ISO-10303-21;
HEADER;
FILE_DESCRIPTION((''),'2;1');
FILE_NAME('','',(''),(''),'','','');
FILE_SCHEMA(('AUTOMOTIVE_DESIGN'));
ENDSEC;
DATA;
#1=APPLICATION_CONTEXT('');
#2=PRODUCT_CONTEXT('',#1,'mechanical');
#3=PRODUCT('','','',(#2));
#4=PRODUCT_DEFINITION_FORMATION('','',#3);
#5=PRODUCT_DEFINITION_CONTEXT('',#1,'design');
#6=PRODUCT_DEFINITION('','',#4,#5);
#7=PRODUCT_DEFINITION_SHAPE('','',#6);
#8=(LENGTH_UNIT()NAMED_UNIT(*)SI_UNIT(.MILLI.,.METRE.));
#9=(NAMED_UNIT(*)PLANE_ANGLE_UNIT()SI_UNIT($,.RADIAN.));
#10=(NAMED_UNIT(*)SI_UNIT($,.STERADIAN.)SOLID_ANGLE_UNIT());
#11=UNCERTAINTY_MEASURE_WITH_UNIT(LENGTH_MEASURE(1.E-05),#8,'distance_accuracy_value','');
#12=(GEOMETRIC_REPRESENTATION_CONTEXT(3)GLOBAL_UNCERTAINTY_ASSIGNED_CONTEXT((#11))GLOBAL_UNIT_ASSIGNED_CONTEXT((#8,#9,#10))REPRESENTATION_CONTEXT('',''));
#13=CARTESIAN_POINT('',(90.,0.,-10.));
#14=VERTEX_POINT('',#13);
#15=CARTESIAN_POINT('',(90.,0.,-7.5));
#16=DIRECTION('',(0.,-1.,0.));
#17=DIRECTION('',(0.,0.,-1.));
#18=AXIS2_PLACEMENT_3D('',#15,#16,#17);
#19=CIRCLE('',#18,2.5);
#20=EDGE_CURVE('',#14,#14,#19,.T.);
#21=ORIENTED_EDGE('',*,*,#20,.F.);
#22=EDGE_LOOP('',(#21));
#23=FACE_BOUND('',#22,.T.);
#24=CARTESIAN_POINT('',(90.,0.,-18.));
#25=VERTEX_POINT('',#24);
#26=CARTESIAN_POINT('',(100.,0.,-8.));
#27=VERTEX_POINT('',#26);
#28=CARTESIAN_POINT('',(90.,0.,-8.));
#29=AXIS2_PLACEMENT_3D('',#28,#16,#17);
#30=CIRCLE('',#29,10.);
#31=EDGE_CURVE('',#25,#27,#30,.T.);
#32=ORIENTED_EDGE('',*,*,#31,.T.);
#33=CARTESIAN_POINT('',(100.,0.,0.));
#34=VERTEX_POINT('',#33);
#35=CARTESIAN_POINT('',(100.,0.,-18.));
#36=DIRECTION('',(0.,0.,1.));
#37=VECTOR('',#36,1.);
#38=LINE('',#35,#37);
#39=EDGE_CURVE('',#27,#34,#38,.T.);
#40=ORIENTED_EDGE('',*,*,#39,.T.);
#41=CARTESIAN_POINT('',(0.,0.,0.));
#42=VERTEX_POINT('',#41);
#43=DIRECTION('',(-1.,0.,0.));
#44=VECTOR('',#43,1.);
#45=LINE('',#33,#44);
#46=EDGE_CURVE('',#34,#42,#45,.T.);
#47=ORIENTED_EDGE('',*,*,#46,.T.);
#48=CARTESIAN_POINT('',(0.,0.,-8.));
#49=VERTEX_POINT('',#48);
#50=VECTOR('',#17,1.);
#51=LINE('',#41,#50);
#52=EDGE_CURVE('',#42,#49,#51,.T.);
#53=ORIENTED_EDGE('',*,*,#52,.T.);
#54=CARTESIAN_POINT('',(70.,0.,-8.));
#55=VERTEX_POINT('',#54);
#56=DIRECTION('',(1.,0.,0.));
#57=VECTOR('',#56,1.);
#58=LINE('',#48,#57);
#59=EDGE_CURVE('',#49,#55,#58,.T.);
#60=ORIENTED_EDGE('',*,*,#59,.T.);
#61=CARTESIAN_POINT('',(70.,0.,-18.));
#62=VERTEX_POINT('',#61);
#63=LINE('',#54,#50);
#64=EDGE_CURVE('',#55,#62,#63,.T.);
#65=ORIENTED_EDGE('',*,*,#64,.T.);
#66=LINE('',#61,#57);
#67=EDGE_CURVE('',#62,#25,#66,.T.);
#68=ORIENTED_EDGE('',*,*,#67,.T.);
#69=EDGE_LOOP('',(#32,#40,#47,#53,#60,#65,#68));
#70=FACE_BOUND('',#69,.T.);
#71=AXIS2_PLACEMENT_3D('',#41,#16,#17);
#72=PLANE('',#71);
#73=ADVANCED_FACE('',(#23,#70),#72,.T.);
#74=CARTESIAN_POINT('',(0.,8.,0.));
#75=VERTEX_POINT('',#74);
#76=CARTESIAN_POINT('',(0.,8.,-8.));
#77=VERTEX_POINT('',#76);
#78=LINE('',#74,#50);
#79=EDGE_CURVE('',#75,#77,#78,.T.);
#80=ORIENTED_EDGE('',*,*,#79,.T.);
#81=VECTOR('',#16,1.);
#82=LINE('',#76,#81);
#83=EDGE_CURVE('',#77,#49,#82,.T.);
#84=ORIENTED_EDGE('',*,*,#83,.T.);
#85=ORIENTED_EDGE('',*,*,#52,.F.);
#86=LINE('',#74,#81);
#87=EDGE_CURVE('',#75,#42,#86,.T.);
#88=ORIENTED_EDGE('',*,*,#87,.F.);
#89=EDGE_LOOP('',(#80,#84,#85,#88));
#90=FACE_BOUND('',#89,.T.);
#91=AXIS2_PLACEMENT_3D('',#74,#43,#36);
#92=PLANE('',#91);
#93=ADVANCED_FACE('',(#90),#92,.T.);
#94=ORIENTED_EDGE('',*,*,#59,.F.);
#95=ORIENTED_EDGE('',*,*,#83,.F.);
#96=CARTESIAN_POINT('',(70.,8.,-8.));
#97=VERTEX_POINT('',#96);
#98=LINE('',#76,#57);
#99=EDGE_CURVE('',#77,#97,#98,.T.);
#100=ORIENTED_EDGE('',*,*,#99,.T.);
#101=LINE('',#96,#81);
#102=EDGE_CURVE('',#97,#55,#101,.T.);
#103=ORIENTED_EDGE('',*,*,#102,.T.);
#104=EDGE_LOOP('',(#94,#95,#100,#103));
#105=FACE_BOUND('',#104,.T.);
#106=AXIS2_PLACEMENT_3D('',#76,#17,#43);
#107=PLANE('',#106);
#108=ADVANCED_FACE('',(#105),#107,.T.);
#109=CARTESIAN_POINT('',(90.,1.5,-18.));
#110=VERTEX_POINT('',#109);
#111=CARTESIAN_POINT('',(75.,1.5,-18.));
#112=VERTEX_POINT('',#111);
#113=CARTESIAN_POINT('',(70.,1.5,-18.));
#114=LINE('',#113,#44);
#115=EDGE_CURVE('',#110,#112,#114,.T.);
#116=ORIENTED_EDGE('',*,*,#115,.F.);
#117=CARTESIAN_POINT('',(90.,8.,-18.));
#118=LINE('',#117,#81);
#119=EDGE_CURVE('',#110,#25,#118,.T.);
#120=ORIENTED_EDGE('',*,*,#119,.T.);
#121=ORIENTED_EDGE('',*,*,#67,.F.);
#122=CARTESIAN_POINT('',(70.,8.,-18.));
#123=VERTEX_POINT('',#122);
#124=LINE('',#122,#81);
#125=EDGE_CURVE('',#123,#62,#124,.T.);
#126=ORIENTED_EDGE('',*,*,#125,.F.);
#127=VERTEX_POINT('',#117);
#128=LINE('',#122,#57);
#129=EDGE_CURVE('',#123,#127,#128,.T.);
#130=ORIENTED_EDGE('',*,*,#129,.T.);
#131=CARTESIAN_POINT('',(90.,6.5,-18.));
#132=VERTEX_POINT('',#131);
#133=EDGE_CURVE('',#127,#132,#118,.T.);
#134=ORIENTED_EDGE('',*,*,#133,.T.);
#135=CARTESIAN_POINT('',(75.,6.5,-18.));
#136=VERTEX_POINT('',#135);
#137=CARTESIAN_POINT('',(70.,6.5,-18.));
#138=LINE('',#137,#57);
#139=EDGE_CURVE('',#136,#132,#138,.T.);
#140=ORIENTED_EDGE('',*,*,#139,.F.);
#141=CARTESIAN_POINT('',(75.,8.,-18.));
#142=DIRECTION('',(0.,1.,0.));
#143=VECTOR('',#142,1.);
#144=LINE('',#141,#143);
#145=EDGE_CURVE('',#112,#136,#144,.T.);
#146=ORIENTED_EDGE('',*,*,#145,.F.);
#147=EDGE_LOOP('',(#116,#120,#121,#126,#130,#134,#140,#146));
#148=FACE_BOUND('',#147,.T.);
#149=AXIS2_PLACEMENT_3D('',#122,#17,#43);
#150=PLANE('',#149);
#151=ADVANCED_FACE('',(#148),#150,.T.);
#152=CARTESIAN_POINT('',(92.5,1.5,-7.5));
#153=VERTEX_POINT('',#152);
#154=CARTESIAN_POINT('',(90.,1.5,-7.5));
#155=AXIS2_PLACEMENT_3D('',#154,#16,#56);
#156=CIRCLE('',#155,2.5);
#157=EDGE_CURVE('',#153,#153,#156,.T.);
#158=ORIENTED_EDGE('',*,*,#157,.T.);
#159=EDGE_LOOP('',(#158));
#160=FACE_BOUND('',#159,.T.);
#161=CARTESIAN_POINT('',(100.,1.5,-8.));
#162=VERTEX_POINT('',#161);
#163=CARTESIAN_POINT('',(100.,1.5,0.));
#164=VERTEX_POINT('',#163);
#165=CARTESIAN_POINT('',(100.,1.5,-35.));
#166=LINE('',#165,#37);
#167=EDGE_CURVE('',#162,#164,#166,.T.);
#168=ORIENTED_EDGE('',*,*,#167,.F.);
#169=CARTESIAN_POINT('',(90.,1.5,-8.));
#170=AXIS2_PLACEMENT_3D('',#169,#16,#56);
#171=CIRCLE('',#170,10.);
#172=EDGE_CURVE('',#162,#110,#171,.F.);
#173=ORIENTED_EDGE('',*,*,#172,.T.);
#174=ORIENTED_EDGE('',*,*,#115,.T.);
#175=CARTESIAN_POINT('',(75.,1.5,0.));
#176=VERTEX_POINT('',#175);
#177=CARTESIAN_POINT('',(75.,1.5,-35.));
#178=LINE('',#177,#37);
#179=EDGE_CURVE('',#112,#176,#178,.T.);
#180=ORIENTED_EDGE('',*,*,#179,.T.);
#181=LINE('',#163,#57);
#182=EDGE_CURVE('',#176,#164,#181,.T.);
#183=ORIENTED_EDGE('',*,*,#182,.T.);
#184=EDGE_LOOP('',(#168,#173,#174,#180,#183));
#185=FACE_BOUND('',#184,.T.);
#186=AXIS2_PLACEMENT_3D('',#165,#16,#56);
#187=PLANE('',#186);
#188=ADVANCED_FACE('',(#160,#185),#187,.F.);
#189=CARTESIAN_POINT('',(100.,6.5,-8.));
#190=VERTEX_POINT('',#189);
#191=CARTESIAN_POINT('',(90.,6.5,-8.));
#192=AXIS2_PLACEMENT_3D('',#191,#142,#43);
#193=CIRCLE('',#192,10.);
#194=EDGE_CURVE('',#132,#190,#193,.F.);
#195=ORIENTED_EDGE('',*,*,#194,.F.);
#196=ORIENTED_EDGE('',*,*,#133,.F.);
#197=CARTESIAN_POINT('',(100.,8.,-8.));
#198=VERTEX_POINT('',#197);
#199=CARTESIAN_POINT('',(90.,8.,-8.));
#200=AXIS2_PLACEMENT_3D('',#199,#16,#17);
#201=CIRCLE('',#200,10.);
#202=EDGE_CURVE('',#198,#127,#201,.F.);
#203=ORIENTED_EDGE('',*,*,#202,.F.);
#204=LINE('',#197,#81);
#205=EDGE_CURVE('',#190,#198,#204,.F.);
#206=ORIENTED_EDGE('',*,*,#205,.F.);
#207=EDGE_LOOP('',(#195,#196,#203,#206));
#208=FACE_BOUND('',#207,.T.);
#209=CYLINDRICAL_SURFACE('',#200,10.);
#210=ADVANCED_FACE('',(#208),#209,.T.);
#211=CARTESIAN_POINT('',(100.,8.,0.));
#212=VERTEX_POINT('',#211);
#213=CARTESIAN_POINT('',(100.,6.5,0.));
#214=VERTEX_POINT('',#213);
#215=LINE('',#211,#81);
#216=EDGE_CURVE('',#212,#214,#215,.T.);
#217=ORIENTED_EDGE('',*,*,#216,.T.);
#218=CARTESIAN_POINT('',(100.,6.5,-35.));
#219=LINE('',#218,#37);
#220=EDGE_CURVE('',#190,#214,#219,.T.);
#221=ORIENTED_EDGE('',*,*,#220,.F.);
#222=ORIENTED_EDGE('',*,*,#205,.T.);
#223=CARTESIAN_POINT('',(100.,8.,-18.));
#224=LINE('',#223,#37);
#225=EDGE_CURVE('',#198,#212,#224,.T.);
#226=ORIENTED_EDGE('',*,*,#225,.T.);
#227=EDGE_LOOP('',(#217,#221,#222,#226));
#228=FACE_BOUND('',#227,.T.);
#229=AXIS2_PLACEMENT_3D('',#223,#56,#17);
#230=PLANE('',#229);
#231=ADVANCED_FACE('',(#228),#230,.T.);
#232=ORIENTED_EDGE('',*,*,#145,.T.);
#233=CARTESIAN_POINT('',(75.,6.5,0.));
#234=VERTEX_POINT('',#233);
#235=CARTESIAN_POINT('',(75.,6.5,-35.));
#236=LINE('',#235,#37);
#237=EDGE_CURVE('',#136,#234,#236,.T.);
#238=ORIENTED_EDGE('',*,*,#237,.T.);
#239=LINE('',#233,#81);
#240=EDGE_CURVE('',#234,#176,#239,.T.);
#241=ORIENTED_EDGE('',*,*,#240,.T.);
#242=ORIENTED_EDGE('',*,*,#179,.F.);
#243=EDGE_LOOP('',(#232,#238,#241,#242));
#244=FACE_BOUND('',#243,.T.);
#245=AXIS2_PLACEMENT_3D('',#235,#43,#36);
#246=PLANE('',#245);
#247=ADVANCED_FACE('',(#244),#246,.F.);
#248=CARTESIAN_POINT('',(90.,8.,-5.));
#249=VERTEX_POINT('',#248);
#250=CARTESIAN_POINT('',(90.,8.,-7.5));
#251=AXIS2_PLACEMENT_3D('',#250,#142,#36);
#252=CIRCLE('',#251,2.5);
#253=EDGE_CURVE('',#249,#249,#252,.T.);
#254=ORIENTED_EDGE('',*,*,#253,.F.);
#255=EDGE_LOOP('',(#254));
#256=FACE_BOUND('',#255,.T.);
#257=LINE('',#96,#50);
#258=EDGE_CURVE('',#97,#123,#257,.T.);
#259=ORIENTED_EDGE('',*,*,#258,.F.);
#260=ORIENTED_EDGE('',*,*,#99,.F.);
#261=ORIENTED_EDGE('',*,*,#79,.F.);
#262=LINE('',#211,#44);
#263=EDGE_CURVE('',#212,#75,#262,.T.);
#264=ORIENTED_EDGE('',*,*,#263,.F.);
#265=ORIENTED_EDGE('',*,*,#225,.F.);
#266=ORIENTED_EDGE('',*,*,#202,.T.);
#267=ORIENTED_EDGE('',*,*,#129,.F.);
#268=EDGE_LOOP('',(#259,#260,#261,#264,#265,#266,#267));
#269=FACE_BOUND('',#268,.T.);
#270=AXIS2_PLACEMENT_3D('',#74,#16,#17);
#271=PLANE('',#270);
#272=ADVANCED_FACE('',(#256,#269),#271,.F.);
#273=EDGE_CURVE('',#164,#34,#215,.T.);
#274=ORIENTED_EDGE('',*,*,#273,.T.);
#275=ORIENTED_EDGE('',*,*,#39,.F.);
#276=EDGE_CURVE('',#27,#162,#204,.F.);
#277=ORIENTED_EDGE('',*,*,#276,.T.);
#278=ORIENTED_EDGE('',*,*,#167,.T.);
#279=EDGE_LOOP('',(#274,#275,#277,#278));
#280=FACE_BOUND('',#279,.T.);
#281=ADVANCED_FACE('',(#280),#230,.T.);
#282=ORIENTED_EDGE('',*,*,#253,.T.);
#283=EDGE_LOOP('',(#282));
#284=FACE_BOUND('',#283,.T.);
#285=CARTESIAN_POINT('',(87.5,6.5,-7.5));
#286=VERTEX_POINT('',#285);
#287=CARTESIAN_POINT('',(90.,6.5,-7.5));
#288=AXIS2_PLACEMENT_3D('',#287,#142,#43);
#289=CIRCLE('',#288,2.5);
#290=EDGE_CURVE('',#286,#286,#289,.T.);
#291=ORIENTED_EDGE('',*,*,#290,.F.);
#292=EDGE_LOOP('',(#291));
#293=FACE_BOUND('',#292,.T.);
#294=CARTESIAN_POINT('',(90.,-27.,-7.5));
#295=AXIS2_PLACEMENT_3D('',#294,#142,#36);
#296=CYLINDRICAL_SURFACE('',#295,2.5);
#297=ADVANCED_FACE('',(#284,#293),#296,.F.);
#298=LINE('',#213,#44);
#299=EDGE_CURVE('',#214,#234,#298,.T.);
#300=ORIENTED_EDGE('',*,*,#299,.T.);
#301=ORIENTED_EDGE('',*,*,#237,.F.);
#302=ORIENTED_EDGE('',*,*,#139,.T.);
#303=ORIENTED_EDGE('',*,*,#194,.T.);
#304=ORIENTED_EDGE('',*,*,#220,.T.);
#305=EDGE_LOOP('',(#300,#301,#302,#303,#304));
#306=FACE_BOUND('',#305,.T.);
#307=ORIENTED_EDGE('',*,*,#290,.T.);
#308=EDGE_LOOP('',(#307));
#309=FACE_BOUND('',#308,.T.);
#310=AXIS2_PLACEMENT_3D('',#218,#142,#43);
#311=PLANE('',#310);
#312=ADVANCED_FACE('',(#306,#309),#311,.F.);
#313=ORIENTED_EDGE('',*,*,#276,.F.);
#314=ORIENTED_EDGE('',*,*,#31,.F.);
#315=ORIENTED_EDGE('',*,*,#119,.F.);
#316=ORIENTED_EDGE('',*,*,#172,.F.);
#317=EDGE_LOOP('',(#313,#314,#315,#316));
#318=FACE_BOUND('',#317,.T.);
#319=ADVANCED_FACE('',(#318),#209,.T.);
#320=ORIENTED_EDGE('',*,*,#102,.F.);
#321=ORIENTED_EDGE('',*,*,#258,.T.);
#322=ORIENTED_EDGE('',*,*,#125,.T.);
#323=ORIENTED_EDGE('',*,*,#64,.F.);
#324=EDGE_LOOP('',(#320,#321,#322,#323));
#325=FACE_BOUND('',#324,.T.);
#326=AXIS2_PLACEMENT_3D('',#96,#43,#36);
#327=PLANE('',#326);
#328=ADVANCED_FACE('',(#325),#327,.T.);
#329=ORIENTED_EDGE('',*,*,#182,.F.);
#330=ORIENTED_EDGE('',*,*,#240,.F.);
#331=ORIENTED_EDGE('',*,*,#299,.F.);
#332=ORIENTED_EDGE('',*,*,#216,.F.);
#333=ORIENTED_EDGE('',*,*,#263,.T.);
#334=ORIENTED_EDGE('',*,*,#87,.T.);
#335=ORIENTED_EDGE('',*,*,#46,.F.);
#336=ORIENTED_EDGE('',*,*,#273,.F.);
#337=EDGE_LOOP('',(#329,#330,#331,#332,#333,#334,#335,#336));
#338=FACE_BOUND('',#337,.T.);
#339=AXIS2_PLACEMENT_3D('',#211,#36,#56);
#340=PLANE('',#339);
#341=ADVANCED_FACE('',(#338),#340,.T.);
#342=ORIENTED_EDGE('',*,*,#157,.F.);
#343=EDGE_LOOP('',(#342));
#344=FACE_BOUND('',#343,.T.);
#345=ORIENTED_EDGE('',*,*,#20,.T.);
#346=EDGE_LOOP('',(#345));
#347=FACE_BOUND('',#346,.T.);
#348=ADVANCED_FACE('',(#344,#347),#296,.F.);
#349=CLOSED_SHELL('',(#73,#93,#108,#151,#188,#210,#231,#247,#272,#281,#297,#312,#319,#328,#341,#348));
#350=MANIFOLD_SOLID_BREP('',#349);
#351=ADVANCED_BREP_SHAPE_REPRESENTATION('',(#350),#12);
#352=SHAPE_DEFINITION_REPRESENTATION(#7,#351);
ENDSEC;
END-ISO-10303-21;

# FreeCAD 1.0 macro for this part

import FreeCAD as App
import Part
import Sketcher
from FreeCAD import Vector


def edges_at(feature, points):
    """Names of the edges that pass closest to the given points."""
    edges = feature.Shape.Edges
    near = lambda p: min(range(len(edges)), key=lambda i: edges[i].distToShape(Part.Vertex(*p))[0])
    return sorted({f"Edge{near(p) + 1}" for p in points})

doc = App.newDocument("Part")
params = doc.addObject("Spreadsheet::Sheet", "Params")
for row, (alias, value) in enumerate([
    ("sketch1_width", "100 mm"),
    ("sketch1_width2", "30 mm"),
    ("sketch1_height", "8 mm"),
    ("sketch1_height2", "18 mm"),
    ("pad1_length", "8 mm"),
    ("sketch2_width", "25 mm"),
    ("sketch2_height", "5 mm"),
    ("pocket1_length", "35 mm"),
    ("sketch3_diameter", "5 mm"),
    ("pocket2_length", "35 mm"),
    ("fillet_radius", "10 mm"),
], start=1):
    params.set(f"A{row}", alias)
    params.set(f"B{row}", "=" + value)
    params.setAlias(f"B{row}", alias)

body = doc.addObject("PartDesign::Body", "Body")

# Sketch on XZ plane
sketch1 = doc.addObject("Sketcher::SketchObject", "Sketch")
body.addObject(sketch1)
sketch1.AttachmentSupport = (doc.XZ_Plane, [""])
sketch1.MapMode = "FlatFace"
sketch1.addGeometry([
    Part.LineSegment(Vector(0, -8, 0), Vector(0, 0, 0)),  # 0
    Part.LineSegment(Vector(0, 0, 0), Vector(100, 0, 0)),  # 1
    Part.LineSegment(Vector(100, 0, 0), Vector(100, -18, 0)),  # 2
    Part.LineSegment(Vector(100, -18, 0), Vector(70, -18, 0)),  # 3
    Part.LineSegment(Vector(70, -18, 0), Vector(70, -8, 0)),  # 4
    Part.LineSegment(Vector(70, -8, 0), Vector(0, -8, 0)),  # 5
], False)
sketch1.addConstraint([
    Sketcher.Constraint("Coincident", 0, 2, 1, 1),
    Sketcher.Constraint("Coincident", 1, 2, 2, 1),
    Sketcher.Constraint("Coincident", 2, 2, 3, 1),
    Sketcher.Constraint("Coincident", 3, 2, 4, 1),
    Sketcher.Constraint("Coincident", 4, 2, 5, 1),
    Sketcher.Constraint("Coincident", 5, 2, 0, 1),
    Sketcher.Constraint("Vertical", 0),
    Sketcher.Constraint("Horizontal", 1),
    Sketcher.Constraint("Vertical", 2),
    Sketcher.Constraint("Horizontal", 3),
    Sketcher.Constraint("Vertical", 4),
    Sketcher.Constraint("Horizontal", 5),
    Sketcher.Constraint("Coincident", 0, 2, -1, 1),
    Sketcher.Constraint("DistanceX", 1, 1, 1, 2, 100.0),
    Sketcher.Constraint("DistanceX", 3, 2, 3, 1, 30.0),
    Sketcher.Constraint("DistanceY", 0, 1, 0, 2, 8.0),
    Sketcher.Constraint("DistanceY", 2, 2, 2, 1, 18.0),
])
sketch1.setExpression("Constraints[13]", "Params.sketch1_width")
sketch1.setExpression("Constraints[14]", "Params.sketch1_width2")
sketch1.setExpression("Constraints[15]", "Params.sketch1_height")
sketch1.setExpression("Constraints[16]", "Params.sketch1_height2")
pad1 = doc.addObject("PartDesign::Pad", "Pad")
body.addObject(pad1)
pad1.Profile = sketch1
pad1.setExpression("Length", "Params.pad1_length")
pad1.Reversed = True

# Sketch on XY plane
sketch2 = doc.addObject("Sketcher::SketchObject", "Sketch001")
body.addObject(sketch2)
sketch2.AttachmentSupport = (doc.XY_Plane, [""])
sketch2.MapMode = "FlatFace"
sketch2.addGeometry([
    Part.LineSegment(Vector(75, 6.5, 0), Vector(75, 1.5, 0)),
    Part.LineSegment(Vector(75, 1.5, 0), Vector(100, 1.5, 0)),
    Part.LineSegment(Vector(100, 1.5, 0), Vector(100, 6.5, 0)),
    Part.LineSegment(Vector(100, 6.5, 0), Vector(75, 6.5, 0)),
], False)
sketch2.addConstraint([
    Sketcher.Constraint("Coincident", 0, 2, 1, 1),
    Sketcher.Constraint("Coincident", 1, 2, 2, 1),
    Sketcher.Constraint("Coincident", 2, 2, 3, 1),
    Sketcher.Constraint("Coincident", 3, 2, 0, 1),
    Sketcher.Constraint("Vertical", 0),
    Sketcher.Constraint("Horizontal", 1),
    Sketcher.Constraint("Vertical", 2),
    Sketcher.Constraint("Horizontal", 3),
    Sketcher.Constraint("DistanceX", 1, 1, 1, 2, 25.0),
    Sketcher.Constraint("DistanceY", 0, 2, 0, 1, 5.0),
    Sketcher.Constraint("DistanceX", -1, 1, 0, 2, 75.0),
    Sketcher.Constraint("DistanceY", -1, 1, 0, 2, 1.5),
])
sketch2.setExpression("Constraints[8]", "Params.sketch2_width")
sketch2.setExpression("Constraints[9]", "Params.sketch2_height")
pocket1 = doc.addObject("PartDesign::Pocket", "Pocket")
body.addObject(pocket1)
pocket1.Profile = sketch2
pocket1.setExpression("Length", "Params.pocket1_length")

# Sketch on XZ plane
sketch3 = doc.addObject("Sketcher::SketchObject", "Sketch002")
body.addObject(sketch3)
sketch3.AttachmentSupport = (doc.XZ_Plane, [""])
sketch3.MapMode = "FlatFace"
sketch3.AttachmentOffset = App.Placement(Vector(0, 0, -8), App.Rotation())
sketch3.addGeometry(Part.Circle(Vector(90, -7.5, 0), Vector(0, 0, 1), 2.5), False)
sketch3.addConstraint([
    Sketcher.Constraint("Diameter", 0, 5.0),
    Sketcher.Constraint("DistanceX", -1, 1, 0, 3, 90.0),
    Sketcher.Constraint("DistanceY", 0, 3, -1, 1, 7.5),
])
sketch3.setExpression("Constraints[0]", "Params.sketch3_diameter")
pocket2 = doc.addObject("PartDesign::Pocket", "Pocket001")
body.addObject(pocket2)
pocket2.Profile = sketch3
pocket2.setExpression("Length", "Params.pocket2_length")
pocket2.Reversed = True
doc.recompute()

fillet = doc.addObject("PartDesign::Fillet", "Fillet")
body.addObject(fillet)
fillet.Base = (pocket2, edges_at(pocket2, [(100, 7.25, -18), (100, 0.75, -18)]))
fillet.setExpression("Radius", "Params.fillet_radius")

doc.recompute()
